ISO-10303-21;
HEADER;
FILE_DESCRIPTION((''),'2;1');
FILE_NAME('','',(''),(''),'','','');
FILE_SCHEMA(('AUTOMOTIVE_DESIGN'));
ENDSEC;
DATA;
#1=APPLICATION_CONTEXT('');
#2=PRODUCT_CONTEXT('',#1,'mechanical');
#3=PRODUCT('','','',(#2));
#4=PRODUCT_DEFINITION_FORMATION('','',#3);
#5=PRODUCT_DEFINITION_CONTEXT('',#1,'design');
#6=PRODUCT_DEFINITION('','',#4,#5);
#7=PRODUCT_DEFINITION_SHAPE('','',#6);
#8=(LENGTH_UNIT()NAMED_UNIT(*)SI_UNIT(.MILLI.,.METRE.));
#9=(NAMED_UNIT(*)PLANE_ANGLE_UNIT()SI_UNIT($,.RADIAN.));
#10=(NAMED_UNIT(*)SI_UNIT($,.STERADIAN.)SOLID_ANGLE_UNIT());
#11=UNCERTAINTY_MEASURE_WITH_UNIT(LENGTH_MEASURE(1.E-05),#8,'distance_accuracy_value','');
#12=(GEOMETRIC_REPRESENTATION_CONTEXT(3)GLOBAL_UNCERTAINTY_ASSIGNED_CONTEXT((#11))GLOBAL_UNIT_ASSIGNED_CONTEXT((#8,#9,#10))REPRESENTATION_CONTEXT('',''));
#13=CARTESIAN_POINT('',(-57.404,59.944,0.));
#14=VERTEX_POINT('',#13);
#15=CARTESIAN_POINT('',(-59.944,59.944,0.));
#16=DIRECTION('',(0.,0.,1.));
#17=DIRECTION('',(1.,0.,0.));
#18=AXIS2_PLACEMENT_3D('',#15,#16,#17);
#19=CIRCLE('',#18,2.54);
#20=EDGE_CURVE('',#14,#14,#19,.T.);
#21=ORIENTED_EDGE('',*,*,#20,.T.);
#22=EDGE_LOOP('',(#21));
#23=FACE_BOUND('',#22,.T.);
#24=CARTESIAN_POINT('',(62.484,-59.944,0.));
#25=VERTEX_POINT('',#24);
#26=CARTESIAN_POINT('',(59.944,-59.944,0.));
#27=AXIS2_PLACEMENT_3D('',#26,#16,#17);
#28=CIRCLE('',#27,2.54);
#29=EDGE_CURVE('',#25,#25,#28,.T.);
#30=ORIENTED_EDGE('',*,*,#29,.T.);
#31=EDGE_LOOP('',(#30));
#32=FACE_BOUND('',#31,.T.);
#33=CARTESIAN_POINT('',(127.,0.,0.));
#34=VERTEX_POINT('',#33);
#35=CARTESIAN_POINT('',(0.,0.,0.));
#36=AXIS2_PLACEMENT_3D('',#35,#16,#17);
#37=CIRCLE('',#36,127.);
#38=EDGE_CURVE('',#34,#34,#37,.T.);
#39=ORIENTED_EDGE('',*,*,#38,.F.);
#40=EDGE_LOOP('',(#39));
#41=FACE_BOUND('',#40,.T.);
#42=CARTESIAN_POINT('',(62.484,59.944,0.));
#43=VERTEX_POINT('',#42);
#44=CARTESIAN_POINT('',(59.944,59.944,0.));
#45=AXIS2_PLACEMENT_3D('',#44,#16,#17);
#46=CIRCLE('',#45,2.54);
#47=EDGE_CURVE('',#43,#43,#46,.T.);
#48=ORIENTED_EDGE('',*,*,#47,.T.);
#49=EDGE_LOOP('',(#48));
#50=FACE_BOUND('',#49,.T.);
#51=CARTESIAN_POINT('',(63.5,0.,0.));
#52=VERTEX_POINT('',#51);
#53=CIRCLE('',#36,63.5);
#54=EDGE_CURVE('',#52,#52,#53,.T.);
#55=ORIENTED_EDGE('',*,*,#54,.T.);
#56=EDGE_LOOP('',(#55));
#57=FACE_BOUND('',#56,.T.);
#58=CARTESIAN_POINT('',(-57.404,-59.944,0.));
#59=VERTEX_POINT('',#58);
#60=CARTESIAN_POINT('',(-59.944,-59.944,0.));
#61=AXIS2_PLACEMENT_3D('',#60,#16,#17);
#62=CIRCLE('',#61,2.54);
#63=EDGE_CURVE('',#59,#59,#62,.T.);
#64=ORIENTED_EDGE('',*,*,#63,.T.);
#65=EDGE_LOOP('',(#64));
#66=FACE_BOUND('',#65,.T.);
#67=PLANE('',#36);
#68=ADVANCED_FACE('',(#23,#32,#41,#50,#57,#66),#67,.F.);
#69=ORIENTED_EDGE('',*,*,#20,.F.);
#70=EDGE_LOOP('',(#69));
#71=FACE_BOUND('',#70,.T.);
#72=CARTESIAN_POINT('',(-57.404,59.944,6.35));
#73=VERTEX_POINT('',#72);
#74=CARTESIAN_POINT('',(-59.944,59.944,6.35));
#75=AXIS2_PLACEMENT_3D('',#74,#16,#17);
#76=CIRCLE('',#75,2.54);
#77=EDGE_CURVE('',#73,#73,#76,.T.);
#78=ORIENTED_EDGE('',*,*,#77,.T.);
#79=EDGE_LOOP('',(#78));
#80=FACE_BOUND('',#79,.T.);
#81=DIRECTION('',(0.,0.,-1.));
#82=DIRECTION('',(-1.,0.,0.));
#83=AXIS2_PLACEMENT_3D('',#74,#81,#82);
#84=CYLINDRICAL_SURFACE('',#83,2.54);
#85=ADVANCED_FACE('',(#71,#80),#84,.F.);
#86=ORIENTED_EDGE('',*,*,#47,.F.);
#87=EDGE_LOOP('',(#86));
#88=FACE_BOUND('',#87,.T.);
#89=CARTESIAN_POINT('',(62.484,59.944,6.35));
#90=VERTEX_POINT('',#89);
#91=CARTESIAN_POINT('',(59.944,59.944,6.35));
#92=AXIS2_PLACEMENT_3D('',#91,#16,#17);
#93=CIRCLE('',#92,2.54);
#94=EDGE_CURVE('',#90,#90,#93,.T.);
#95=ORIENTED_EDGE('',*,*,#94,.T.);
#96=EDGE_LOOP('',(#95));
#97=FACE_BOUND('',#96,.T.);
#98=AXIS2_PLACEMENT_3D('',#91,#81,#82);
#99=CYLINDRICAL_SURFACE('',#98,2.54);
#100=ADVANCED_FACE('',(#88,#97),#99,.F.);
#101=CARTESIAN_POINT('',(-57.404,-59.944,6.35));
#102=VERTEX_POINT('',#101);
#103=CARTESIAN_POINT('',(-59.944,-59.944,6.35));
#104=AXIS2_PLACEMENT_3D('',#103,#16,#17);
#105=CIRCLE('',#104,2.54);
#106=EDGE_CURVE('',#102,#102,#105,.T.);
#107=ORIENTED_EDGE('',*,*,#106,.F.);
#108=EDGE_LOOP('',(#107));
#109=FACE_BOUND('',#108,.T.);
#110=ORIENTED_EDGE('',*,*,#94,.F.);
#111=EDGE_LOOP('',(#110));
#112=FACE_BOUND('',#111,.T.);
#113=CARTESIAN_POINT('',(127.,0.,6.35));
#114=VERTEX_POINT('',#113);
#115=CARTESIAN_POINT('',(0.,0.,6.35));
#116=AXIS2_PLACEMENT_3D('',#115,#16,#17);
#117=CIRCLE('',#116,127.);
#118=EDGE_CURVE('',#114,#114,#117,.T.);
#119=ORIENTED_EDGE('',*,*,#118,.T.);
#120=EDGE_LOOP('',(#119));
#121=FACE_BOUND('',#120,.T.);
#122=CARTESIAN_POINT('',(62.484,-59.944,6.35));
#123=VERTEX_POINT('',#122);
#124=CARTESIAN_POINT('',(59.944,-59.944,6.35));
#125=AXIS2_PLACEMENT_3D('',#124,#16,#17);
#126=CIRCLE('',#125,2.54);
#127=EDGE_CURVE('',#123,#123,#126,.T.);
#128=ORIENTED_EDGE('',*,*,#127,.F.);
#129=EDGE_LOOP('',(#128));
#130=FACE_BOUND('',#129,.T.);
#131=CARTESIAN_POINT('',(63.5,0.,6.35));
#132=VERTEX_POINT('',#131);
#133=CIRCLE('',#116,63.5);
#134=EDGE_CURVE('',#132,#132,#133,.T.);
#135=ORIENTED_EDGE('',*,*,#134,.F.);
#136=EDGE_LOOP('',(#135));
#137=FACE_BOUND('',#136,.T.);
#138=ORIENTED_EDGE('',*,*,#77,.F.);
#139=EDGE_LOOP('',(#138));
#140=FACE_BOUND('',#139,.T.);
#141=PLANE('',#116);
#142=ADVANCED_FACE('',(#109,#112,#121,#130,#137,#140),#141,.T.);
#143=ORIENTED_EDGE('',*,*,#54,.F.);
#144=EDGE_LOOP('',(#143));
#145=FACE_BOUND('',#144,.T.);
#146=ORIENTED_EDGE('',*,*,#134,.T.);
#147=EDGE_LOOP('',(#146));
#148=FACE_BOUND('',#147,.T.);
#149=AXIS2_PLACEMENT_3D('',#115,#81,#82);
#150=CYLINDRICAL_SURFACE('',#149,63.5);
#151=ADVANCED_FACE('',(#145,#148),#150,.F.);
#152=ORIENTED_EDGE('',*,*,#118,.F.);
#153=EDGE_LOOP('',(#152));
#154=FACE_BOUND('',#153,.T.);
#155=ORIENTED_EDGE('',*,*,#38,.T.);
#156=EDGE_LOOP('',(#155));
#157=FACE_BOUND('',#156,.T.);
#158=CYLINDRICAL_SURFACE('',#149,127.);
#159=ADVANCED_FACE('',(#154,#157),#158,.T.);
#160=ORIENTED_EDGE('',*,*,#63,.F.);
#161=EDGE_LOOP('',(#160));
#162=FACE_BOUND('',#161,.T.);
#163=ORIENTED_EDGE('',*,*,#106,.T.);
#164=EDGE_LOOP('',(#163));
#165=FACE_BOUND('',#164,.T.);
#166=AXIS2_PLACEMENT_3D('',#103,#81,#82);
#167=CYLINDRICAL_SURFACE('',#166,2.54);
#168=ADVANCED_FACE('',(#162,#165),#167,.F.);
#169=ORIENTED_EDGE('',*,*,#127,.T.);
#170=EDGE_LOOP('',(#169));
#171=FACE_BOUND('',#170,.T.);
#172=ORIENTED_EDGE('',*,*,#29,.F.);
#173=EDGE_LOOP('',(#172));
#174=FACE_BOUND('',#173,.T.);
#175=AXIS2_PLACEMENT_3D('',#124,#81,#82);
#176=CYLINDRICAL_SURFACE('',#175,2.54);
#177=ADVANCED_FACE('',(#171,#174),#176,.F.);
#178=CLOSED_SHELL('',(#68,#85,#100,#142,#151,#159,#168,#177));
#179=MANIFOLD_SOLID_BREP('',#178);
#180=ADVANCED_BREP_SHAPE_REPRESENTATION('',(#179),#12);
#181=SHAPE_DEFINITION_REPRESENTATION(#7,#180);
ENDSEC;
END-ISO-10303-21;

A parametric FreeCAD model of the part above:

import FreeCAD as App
import Part
import Sketcher

V = App.Vector
Q = App.Units.Quantity

doc = App.newDocument("Part")
body = doc.addObject("PartDesign::Body", "Body")

# Sketch on XY plane
sketch1 = body.newObject("Sketcher::SketchObject", "Sketch")
sketch1.AttachmentSupport = (doc.getObject("XY_Plane"), [""])
sketch1.MapMode = "FlatFace"
sketch1.addGeometry([
    Part.Circle(V(0, 0, 0), V(0, 0, 1), 127),  # 0
    Part.Circle(V(-59.9, -59.9, 0), V(0, 0, 1), 2.5),  # 1
    Part.Circle(V(59.9, -59.9, 0), V(0, 0, 1), 2.5),  # 2
    Part.Circle(V(-59.9, 59.9, 0), V(0, 0, 1), 2.5),  # 3
    Part.Circle(V(0, 0, 0), V(0, 0, 1), 63.5),  # 4
    Part.Circle(V(59.9, 59.9, 0), V(0, 0, 1), 2.5),  # 5
], False)
sketch1.addConstraint([
    Sketcher.Constraint("Coincident", 0, 3, -1, 1),
    Sketcher.Constraint("Coincident", 4, 3, -1, 1),
    Sketcher.Constraint("Equal", 1, 2),
    Sketcher.Constraint("Equal", 2, 3),
    Sketcher.Constraint("Equal", 3, 5),
    Sketcher.Constraint("Symmetric", 2, 3, 3, 3, -1, 1),
    Sketcher.Constraint("Symmetric", 1, 3, 5, 3, -1, 1),
    Sketcher.Constraint("Symmetric", 1, 3, 2, 3, -2),
    Sketcher.Constraint("Diameter", 0, Q("10 in")),
    Sketcher.Constraint("Diameter", 4, Q("5 in")),
    Sketcher.Constraint("Diameter", 1, Q("0.2 in")),
    Sketcher.Constraint("DistanceX", 1, 3, -1, 1, Q("2.36 in")),
    Sketcher.Constraint("DistanceY", 1, 3, -1, 1, Q("2.36 in")),
])
pad1 = body.newObject("PartDesign::Pad", "Pad")
pad1.Profile = sketch1
pad1.Length = Q("0.25 in")

doc.recompute()
